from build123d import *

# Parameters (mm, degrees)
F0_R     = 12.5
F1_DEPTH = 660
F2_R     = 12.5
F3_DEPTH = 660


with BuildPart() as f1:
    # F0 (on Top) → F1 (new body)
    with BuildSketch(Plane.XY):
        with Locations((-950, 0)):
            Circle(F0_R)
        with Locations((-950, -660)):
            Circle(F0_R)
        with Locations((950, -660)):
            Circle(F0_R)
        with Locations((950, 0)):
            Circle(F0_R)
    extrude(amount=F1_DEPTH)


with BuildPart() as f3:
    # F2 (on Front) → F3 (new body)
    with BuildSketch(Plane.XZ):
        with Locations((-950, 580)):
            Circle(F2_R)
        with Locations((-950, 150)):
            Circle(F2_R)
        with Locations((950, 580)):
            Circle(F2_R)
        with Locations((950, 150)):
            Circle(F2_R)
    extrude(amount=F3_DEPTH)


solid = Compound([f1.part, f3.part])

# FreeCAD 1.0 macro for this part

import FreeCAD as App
import Part
import Sketcher

V = App.Vector
Q = App.Units.Quantity

doc = App.newDocument("Part")
body = doc.addObject("PartDesign::Body", "Body")
body.AllowCompound = True

# Sketch on XY plane
sketch1 = body.newObject("Sketcher::SketchObject", "Sketch")
sketch1.AttachmentSupport = (doc.getObject("XY_Plane"), [""])
sketch1.MapMode = "FlatFace"
sketch1.addGeometry(Part.Circle(V(-950, 0, 0), V(0, 0, 1), 12), False)
sketch1.addGeometry(Part.Circle(V(-950, -660, 0), V(0, 0, 1), 12), False)
sketch1.addGeometry(Part.Circle(V(950, -660, 0), V(0, 0, 1), 12), False)
sketch1.addGeometry(Part.Circle(V(950, 0, 0), V(0, 0, 1), 12), False)
sketch1.addConstraint(Sketcher.Constraint("Equal", 0, 1))
sketch1.addConstraint(Sketcher.Constraint("Equal", 1, 2))
sketch1.addConstraint(Sketcher.Constraint("Equal", 2, 3))
sketch1.addConstraint(Sketcher.Constraint("Symmetric", 0, 3, 3, 3, -1, 1))
sketch1.addConstraint(Sketcher.Constraint("Symmetric", 1, 3, 2, 3, -2))
sketch1.addConstraint(Sketcher.Constraint("PointOnObject", 0, 3, -1))
sketch1.addConstraint(Sketcher.Constraint("Vertical", 0, 3, 1, 3))
sketch1.addConstraint(Sketcher.Constraint("Diameter", 0, Q("25 mm")))
sketch1.addConstraint(Sketcher.Constraint("DistanceX", 0, 3, -1, 1, Q("950 mm")))
sketch1.addConstraint(Sketcher.Constraint("DistanceY", 1, 3, -1, 1, Q("660 mm")))
pad1 = body.newObject("PartDesign::Pad", "Pad")
pad1.Profile = sketch1
pad1.Length = 660
body2 = doc.addObject("PartDesign::Body", "Body001")
body2.AllowCompound = True

# Sketch on XZ plane
sketch2 = body2.newObject("Sketcher::SketchObject", "Sketch001")
sketch2.AttachmentSupport = (doc.getObject("XZ_Plane001"), [""])
sketch2.MapMode = "FlatFace"
sketch2.addGeometry(Part.Circle(V(-950, 580, 0), V(0, 0, 1), 12), False)
sketch2.addGeometry(Part.Circle(V(-950, 150, 0), V(0, 0, 1), 12), False)
sketch2.addGeometry(Part.Circle(V(950, 580, 0), V(0, 0, 1), 12), False)
sketch2.addGeometry(Part.Circle(V(950, 150, 0), V(0, 0, 1), 12), False)
sketch2.addConstraint(Sketcher.Constraint("Equal", 0, 1))
sketch2.addConstraint(Sketcher.Constraint("Equal", 1, 2))
sketch2.addConstraint(Sketcher.Constraint("Equal", 2, 3))
sketch2.addConstraint(Sketcher.Constraint("Symmetric", 0, 3, 2, 3, -2))
sketch2.addConstraint(Sketcher.Constraint("Symmetric", 1, 3, 3, 3, -2))
sketch2.addConstraint(Sketcher.Constraint("Vertical", 0, 3, 1, 3))
sketch2.addConstraint(Sketcher.Constraint("Diameter", 0, Q("25 mm")))
sketch2.addConstraint(Sketcher.Constraint("DistanceX", 0, 3, -1, 1, Q("950 mm")))
sketch2.addConstraint(Sketcher.Constraint("DistanceY", -1, 1, 0, 3, Q("580 mm")))
sketch2.addConstraint(Sketcher.Constraint("DistanceY", -1, 1, 1, 3, Q("150 mm")))
pad2 = body2.newObject("PartDesign::Pad", "Pad001")
pad2.Profile = sketch2
pad2.Length = 660

doc.recompute()
